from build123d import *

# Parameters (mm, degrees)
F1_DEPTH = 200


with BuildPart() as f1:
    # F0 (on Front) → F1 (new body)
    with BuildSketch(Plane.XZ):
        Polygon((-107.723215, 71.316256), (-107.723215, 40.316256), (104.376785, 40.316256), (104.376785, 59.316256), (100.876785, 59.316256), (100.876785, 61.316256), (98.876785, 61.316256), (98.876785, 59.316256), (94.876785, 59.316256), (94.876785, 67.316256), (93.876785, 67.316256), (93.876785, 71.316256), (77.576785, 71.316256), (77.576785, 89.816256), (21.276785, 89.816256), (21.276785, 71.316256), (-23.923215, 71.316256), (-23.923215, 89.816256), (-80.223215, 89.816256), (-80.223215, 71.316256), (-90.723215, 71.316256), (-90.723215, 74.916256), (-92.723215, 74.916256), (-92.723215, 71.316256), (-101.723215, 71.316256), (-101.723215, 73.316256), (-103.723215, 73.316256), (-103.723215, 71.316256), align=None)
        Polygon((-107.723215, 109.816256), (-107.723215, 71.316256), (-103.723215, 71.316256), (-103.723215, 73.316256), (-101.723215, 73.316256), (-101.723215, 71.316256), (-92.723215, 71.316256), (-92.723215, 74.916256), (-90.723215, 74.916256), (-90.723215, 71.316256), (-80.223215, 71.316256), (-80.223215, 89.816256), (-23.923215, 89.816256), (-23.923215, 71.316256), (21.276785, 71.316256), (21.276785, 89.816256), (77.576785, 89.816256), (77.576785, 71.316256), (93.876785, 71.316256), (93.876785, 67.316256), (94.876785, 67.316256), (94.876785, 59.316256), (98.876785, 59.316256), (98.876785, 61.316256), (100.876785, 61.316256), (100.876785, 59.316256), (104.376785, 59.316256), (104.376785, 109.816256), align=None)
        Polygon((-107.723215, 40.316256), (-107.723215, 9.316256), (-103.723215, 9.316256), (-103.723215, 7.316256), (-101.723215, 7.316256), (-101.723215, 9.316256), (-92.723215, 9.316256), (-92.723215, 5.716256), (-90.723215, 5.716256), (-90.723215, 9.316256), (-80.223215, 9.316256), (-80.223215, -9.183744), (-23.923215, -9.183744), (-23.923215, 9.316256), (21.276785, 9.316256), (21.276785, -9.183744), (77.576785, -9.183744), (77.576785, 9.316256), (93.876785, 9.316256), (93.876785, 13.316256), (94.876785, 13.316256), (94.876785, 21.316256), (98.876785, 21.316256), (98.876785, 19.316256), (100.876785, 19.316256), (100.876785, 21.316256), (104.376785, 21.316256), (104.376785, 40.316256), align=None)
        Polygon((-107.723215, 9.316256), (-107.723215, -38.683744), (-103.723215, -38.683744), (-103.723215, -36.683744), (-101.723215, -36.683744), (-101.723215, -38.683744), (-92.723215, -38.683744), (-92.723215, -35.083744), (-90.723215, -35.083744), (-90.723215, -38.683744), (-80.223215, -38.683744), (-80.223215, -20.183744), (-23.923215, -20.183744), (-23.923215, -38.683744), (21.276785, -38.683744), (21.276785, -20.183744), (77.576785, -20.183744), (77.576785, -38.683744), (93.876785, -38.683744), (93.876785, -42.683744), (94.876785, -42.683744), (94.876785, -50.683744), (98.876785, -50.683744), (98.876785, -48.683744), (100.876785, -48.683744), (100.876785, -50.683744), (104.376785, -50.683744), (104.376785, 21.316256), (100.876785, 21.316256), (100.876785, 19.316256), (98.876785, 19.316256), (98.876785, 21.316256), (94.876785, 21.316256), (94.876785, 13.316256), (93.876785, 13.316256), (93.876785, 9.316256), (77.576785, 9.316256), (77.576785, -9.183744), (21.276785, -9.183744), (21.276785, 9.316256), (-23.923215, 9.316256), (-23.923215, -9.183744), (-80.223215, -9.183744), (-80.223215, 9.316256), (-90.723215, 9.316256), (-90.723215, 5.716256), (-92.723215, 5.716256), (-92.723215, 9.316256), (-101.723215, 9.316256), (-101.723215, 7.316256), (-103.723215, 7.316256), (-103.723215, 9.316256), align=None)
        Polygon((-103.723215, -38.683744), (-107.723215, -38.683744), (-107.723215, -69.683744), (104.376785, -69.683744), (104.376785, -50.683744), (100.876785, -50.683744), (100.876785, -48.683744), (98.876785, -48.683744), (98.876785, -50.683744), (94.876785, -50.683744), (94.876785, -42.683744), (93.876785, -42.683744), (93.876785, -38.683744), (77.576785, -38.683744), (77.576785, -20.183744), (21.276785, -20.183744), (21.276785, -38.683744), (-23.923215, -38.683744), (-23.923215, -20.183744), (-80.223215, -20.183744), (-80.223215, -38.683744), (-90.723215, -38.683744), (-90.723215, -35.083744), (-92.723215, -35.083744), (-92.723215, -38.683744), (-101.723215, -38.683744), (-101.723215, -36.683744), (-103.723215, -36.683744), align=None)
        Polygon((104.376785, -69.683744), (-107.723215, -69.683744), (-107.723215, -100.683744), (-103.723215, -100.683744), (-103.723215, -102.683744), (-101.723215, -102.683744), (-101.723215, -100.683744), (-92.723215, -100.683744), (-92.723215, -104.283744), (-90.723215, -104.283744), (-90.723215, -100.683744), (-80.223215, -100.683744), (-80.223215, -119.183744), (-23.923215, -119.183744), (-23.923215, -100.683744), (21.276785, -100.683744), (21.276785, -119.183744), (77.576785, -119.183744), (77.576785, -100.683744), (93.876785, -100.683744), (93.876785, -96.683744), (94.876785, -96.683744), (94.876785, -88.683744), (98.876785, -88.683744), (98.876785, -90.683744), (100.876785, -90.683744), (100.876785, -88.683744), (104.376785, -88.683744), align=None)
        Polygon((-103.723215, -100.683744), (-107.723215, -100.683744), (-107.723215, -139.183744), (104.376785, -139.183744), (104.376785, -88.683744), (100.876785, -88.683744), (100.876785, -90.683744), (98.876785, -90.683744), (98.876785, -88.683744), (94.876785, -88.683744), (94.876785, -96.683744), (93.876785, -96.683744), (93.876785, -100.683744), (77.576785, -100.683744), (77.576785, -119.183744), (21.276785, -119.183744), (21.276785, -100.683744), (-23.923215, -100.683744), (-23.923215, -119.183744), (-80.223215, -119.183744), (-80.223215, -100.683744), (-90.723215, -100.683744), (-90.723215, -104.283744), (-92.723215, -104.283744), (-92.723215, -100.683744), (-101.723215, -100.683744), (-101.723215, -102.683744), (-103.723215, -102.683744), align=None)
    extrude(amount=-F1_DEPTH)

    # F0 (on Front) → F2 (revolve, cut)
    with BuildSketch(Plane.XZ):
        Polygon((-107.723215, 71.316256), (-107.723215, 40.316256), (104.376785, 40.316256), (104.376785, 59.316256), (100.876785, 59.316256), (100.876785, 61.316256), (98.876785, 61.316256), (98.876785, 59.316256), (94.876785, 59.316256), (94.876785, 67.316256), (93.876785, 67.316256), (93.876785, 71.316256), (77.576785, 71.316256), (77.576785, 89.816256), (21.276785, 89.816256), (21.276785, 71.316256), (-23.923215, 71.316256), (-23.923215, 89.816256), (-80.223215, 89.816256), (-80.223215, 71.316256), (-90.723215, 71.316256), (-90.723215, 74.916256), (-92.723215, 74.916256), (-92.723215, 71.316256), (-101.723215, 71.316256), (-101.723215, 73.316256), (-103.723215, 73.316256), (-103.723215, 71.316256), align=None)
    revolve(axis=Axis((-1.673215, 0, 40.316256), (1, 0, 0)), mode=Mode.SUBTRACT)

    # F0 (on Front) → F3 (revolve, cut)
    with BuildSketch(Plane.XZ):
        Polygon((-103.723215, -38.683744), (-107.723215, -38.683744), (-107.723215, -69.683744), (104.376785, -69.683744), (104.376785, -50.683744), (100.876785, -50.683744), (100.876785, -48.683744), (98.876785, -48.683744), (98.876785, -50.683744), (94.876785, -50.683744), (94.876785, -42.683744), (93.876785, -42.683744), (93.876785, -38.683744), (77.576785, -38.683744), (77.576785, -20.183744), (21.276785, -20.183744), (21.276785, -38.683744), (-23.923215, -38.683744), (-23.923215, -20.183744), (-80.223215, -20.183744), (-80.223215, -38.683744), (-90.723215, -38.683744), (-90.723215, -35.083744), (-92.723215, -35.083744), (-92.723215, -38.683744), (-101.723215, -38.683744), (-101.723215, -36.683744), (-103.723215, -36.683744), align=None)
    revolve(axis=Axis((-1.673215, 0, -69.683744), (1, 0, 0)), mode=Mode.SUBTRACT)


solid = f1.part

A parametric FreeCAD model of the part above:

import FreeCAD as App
import Part
import Sketcher

V = App.Vector
Q = App.Units.Quantity

doc = App.newDocument("Part")
body = doc.addObject("PartDesign::Body", "Body")

sketch1 = body.newObject("Sketcher::SketchObject", "Sketch")
sketch1.AttachmentSupport = (doc.getObject("XZ_Plane"), [""])
sketch1.MapMode = "FlatFace"
sketch1.addGeometry([
    Part.LineSegment(V(104.376785, 109.816256, 0), V(-107.723215, 109.816256, 0)),
    Part.LineSegment(V(-107.723215, 109.816256, 0), V(-107.723215, -139.183744, 0)),
    Part.LineSegment(V(-107.723215, -139.183744, 0), V(104.376785, -139.183744, 0)),
    Part.LineSegment(V(104.376785, -139.183744, 0), V(104.376785, 109.816256, 0)),
], False)
sketch1.addConstraint([
    Sketcher.Constraint("Coincident", 0, 2, 1, 1),
    Sketcher.Constraint("Coincident", 1, 2, 2, 1),
    Sketcher.Constraint("Coincident", 2, 2, 3, 1),
    Sketcher.Constraint("Coincident", 3, 2, 0, 1),
    Sketcher.Constraint("Horizontal", 0),
    Sketcher.Constraint("Vertical", 1),
    Sketcher.Constraint("Horizontal", 2),
    Sketcher.Constraint("Vertical", 3),
    Sketcher.Constraint("DistanceY", 1, 2, 1, 1, Q("249 mm")),
    Sketcher.Constraint("DistanceX", 0, 2, 0, 1, Q("212.1 mm")),
    Sketcher.Constraint("DistanceX", 0, 2, -1, 1, Q("107.723215 mm")),
    Sketcher.Constraint("DistanceY", -1, 1, 0, 2, Q("109.816256 mm")),
])
pad1 = body.newObject("PartDesign::Pad", "Pad")
pad1.Profile = sketch1
pad1.Length = 200
pad1.Reversed = True

sketch2 = body.newObject("Sketcher::SketchObject", "Sketch001")
sketch2.AttachmentSupport = (doc.getObject("XZ_Plane"), [""])
sketch2.MapMode = "FlatFace"
sketch2.addGeometry([
    Part.LineSegment(V(-107.723215, 71.316256, 0), V(-107.723215, 40.316256, 0)),
    Part.LineSegment(V(-107.723215, 40.316256, 0), V(104.376785, 40.316256, 0)),
    Part.LineSegment(V(104.376785, 40.316256, 0), V(104.376785, 59.316256, 0)),
    Part.LineSegment(V(104.376785, 59.316256, 0), V(100.876785, 59.316256, 0)),
    Part.LineSegment(V(100.876785, 59.316256, 0), V(100.876785, 61.316256, 0)),
    Part.LineSegment(V(100.876785, 61.316256, 0), V(98.876785, 61.316256, 0)),
    Part.LineSegment(V(98.876785, 61.316256, 0), V(98.876785, 59.316256, 0)),
    Part.LineSegment(V(98.876785, 59.316256, 0), V(94.876785, 59.316256, 0)),
    Part.LineSegment(V(94.876785, 59.316256, 0), V(94.876785, 67.316256, 0)),
    Part.LineSegment(V(94.876785, 67.316256, 0), V(93.876785, 67.316256, 0)),
    Part.LineSegment(V(93.876785, 67.316256, 0), V(93.876785, 71.316256, 0)),
    Part.LineSegment(V(93.876785, 71.316256, 0), V(77.576785, 71.316256, 0)),
    Part.LineSegment(V(77.576785, 71.316256, 0), V(77.576785, 89.816256, 0)),
    Part.LineSegment(V(77.576785, 89.816256, 0), V(21.276785, 89.816256, 0)),
    Part.LineSegment(V(21.276785, 89.816256, 0), V(21.276785, 71.316256, 0)),
    Part.LineSegment(V(21.276785, 71.316256, 0), V(-23.923215, 71.316256, 0)),
    Part.LineSegment(V(-23.923215, 71.316256, 0), V(-23.923215, 89.816256, 0)),
    Part.LineSegment(V(-23.923215, 89.816256, 0), V(-80.223215, 89.816256, 0)),
    Part.LineSegment(V(-80.223215, 89.816256, 0), V(-80.223215, 71.316256, 0)),
    Part.LineSegment(V(-80.223215, 71.316256, 0), V(-90.723215, 71.316256, 0)),
    Part.LineSegment(V(-90.723215, 71.316256, 0), V(-90.723215, 74.916256, 0)),
    Part.LineSegment(V(-90.723215, 74.916256, 0), V(-92.723215, 74.916256, 0)),
    Part.LineSegment(V(-92.723215, 74.916256, 0), V(-92.723215, 71.316256, 0)),
    Part.LineSegment(V(-92.723215, 71.316256, 0), V(-101.723215, 71.316256, 0)),
    Part.LineSegment(V(-101.723215, 71.316256, 0), V(-101.723215, 73.316256, 0)),
    Part.LineSegment(V(-101.723215, 73.316256, 0), V(-103.723215, 73.316256, 0)),
    Part.LineSegment(V(-103.723215, 73.316256, 0), V(-103.723215, 71.316256, 0)),
    Part.LineSegment(V(-103.723215, 71.316256, 0), V(-107.723215, 71.316256, 0)),
], False)
sketch2.addGeometry(Part.LineSegment(V(-107.723215, 40.316256, 0), V(104.376785, 40.316256, 0)), True)
sketch2.addConstraint([
    Sketcher.Constraint("Coincident", 0, 2, 1, 1),
    Sketcher.Constraint("Coincident", 1, 2, 2, 1),
    Sketcher.Constraint("Coincident", 2, 2, 3, 1),
    Sketcher.Constraint("Coincident", 3, 2, 4, 1),
    Sketcher.Constraint("Coincident", 4, 2, 5, 1),
    Sketcher.Constraint("Coincident", 5, 2, 6, 1),
    Sketcher.Constraint("Coincident", 6, 2, 7, 1),
    Sketcher.Constraint("Coincident", 7, 2, 8, 1),
    Sketcher.Constraint("Coincident", 8, 2, 9, 1),
    Sketcher.Constraint("Coincident", 9, 2, 10, 1),
    Sketcher.Constraint("Coincident", 10, 2, 11, 1),
    Sketcher.Constraint("Coincident", 11, 2, 12, 1),
    Sketcher.Constraint("Coincident", 12, 2, 13, 1),
    Sketcher.Constraint("Coincident", 13, 2, 14, 1),
    Sketcher.Constraint("Coincident", 14, 2, 15, 1),
    Sketcher.Constraint("Coincident", 15, 2, 16, 1),
    Sketcher.Constraint("Coincident", 16, 2, 17, 1),
    Sketcher.Constraint("Coincident", 17, 2, 18, 1),
    Sketcher.Constraint("Coincident", 18, 2, 19, 1),
    Sketcher.Constraint("Coincident", 19, 2, 20, 1),
    Sketcher.Constraint("Coincident", 20, 2, 21, 1),
    Sketcher.Constraint("Coincident", 21, 2, 22, 1),
    Sketcher.Constraint("Coincident", 22, 2, 23, 1),
    Sketcher.Constraint("Coincident", 23, 2, 24, 1),
    Sketcher.Constraint("Coincident", 24, 2, 25, 1),
    Sketcher.Constraint("Coincident", 25, 2, 26, 1),
    Sketcher.Constraint("Coincident", 26, 2, 27, 1),
    Sketcher.Constraint("Coincident", 27, 2, 0, 1),
    Sketcher.Constraint("Vertical", 0),
    Sketcher.Constraint("Horizontal", 1),
    Sketcher.Constraint("Vertical", 2),
    Sketcher.Constraint("Horizontal", 3),
    Sketcher.Constraint("Vertical", 4),
    Sketcher.Constraint("Horizontal", 5),
    Sketcher.Constraint("Vertical", 6),
    Sketcher.Constraint("Horizontal", 7),
    Sketcher.Constraint("Vertical", 8),
    Sketcher.Constraint("Horizontal", 9),
    Sketcher.Constraint("Vertical", 10),
    Sketcher.Constraint("Horizontal", 11),
    Sketcher.Constraint("Vertical", 12),
    Sketcher.Constraint("Horizontal", 13),
    Sketcher.Constraint("Vertical", 14),
    Sketcher.Constraint("Horizontal", 15),
    Sketcher.Constraint("Vertical", 16),
    Sketcher.Constraint("Horizontal", 17),
    Sketcher.Constraint("Vertical", 18),
    Sketcher.Constraint("Horizontal", 19),
    Sketcher.Constraint("Vertical", 20),
    Sketcher.Constraint("Horizontal", 21),
    Sketcher.Constraint("Vertical", 22),
    Sketcher.Constraint("Horizontal", 23),
    Sketcher.Constraint("Vertical", 24),
    Sketcher.Constraint("Horizontal", 25),
    Sketcher.Constraint("Vertical", 26),
    Sketcher.Constraint("Horizontal", 27),
    Sketcher.Constraint("Horizontal", 28),
    Sketcher.Constraint("Coincident", 28, 1, 0, 2),
    Sketcher.Constraint("Horizontal", 3, 2, 6, 2),
    Sketcher.Constraint("Horizontal", 11, 2, 14, 2),
    Sketcher.Constraint("Horizontal", 13, 2, 16, 2),
    Sketcher.Constraint("Horizontal", 15, 2, 18, 2),
    Sketcher.Constraint("Horizontal", 19, 2, 22, 2),
    Sketcher.Constraint("Horizontal", 23, 2, 26, 2),
    Sketcher.Constraint("Vertical", 2, 2, 28, 2),
    Sketcher.Constraint("Equal", 13, 17),
    Sketcher.Constraint("Equal", 5, 21),
    Sketcher.Constraint("Equal", 21, 25),
    Sketcher.Constraint("Equal", 7, 27),
    Sketcher.Constraint("Equal", 25, 4),
    Sketcher.Constraint("Equal", 27, 10),
    Sketcher.Constraint("Equal", 6, 24),
    Sketcher.Constraint("DistanceX", 5, 2, 5, 1, Q("2 mm")),
    Sketcher.Constraint("DistanceX", 7, 2, 7, 1, Q("4 mm")),
    Sketcher.Constraint("DistanceX", 9, 2, 9, 1, Q("1 mm")),
    Sketcher.Constraint("DistanceX", 23, 2, 23, 1, Q("9 mm")),
    Sketcher.Constraint("DistanceY", 0, 2, 0, 1, Q("31 mm")),
    Sketcher.Constraint("DistanceY", 2, 1, 2, 2, Q("19 mm")),
    Sketcher.Constraint("DistanceX", 1, 1, 1, 2, Q("212.1 mm")),
    Sketcher.Constraint("DistanceX", 3, 2, 3, 1, Q("3.5 mm")),
    Sketcher.Constraint("DistanceX", 11, 2, 11, 1, Q("16.3 mm")),
    Sketcher.Constraint("DistanceX", 13, 2, 13, 1, Q("56.3 mm")),
    Sketcher.Constraint("DistanceX", 15, 2, 15, 1, Q("45.2 mm")),
    Sketcher.Constraint("DistanceY", 12, 1, 12, 2, Q("18.5 mm")),
    Sketcher.Constraint("DistanceY", 20, 1, 20, 2, Q("3.6 mm")),
    Sketcher.Constraint("DistanceX", 0, 2, -1, 1, Q("107.723215 mm")),
    Sketcher.Constraint("DistanceY", -1, 1, 0, 2, Q("40.316256 mm")),
])
groove = body.newObject("PartDesign::Groove", "Groove")
groove.Profile = sketch2
groove.ReferenceAxis = (sketch2, ["Axis0"])
groove.Angle = 360

sketch3 = body.newObject("Sketcher::SketchObject", "Sketch002")
sketch3.AttachmentSupport = (doc.getObject("XZ_Plane"), [""])
sketch3.MapMode = "FlatFace"
sketch3.addGeometry([
    Part.LineSegment(V(-103.723215, -38.683744, 0), V(-107.723215, -38.683744, 0)),
    Part.LineSegment(V(-107.723215, -38.683744, 0), V(-107.723215, -69.683744, 0)),
    Part.LineSegment(V(-107.723215, -69.683744, 0), V(104.376785, -69.683744, 0)),
    Part.LineSegment(V(104.376785, -69.683744, 0), V(104.376785, -50.683744, 0)),
    Part.LineSegment(V(104.376785, -50.683744, 0), V(100.876785, -50.683744, 0)),
    Part.LineSegment(V(100.876785, -50.683744, 0), V(100.876785, -48.683744, 0)),
    Part.LineSegment(V(100.876785, -48.683744, 0), V(98.876785, -48.683744, 0)),
    Part.LineSegment(V(98.876785, -48.683744, 0), V(98.876785, -50.683744, 0)),
    Part.LineSegment(V(98.876785, -50.683744, 0), V(94.876785, -50.683744, 0)),
    Part.LineSegment(V(94.876785, -50.683744, 0), V(94.876785, -42.683744, 0)),
    Part.LineSegment(V(94.876785, -42.683744, 0), V(93.876785, -42.683744, 0)),
    Part.LineSegment(V(93.876785, -42.683744, 0), V(93.876785, -38.683744, 0)),
    Part.LineSegment(V(93.876785, -38.683744, 0), V(77.576785, -38.683744, 0)),
    Part.LineSegment(V(77.576785, -38.683744, 0), V(77.576785, -20.183744, 0)),
    Part.LineSegment(V(77.576785, -20.183744, 0), V(21.276785, -20.183744, 0)),
    Part.LineSegment(V(21.276785, -20.183744, 0), V(21.276785, -38.683744, 0)),
    Part.LineSegment(V(21.276785, -38.683744, 0), V(-23.923215, -38.683744, 0)),
    Part.LineSegment(V(-23.923215, -38.683744, 0), V(-23.923215, -20.183744, 0)),
    Part.LineSegment(V(-23.923215, -20.183744, 0), V(-80.223215, -20.183744, 0)),
    Part.LineSegment(V(-80.223215, -20.183744, 0), V(-80.223215, -38.683744, 0)),
    Part.LineSegment(V(-80.223215, -38.683744, 0), V(-90.723215, -38.683744, 0)),
    Part.LineSegment(V(-90.723215, -38.683744, 0), V(-90.723215, -35.083744, 0)),
    Part.LineSegment(V(-90.723215, -35.083744, 0), V(-92.723215, -35.083744, 0)),
    Part.LineSegment(V(-92.723215, -35.083744, 0), V(-92.723215, -38.683744, 0)),
    Part.LineSegment(V(-92.723215, -38.683744, 0), V(-101.723215, -38.683744, 0)),
    Part.LineSegment(V(-101.723215, -38.683744, 0), V(-101.723215, -36.683744, 0)),
    Part.LineSegment(V(-101.723215, -36.683744, 0), V(-103.723215, -36.683744, 0)),
    Part.LineSegment(V(-103.723215, -36.683744, 0), V(-103.723215, -38.683744, 0)),
], False)
sketch3.addGeometry(Part.LineSegment(V(-107.723215, -69.683744, 0), V(104.376785, -69.683744, 0)), True)
sketch3.addConstraint([
    Sketcher.Constraint("Coincident", 0, 2, 1, 1),
    Sketcher.Constraint("Coincident", 1, 2, 2, 1),
    Sketcher.Constraint("Coincident", 2, 2, 3, 1),
    Sketcher.Constraint("Coincident", 3, 2, 4, 1),
    Sketcher.Constraint("Coincident", 4, 2, 5, 1),
    Sketcher.Constraint("Coincident", 5, 2, 6, 1),
    Sketcher.Constraint("Coincident", 6, 2, 7, 1),
    Sketcher.Constraint("Coincident", 7, 2, 8, 1),
    Sketcher.Constraint("Coincident", 8, 2, 9, 1),
    Sketcher.Constraint("Coincident", 9, 2, 10, 1),
    Sketcher.Constraint("Coincident", 10, 2, 11, 1),
    Sketcher.Constraint("Coincident", 11, 2, 12, 1),
    Sketcher.Constraint("Coincident", 12, 2, 13, 1),
    Sketcher.Constraint("Coincident", 13, 2, 14, 1),
    Sketcher.Constraint("Coincident", 14, 2, 15, 1),
    Sketcher.Constraint("Coincident", 15, 2, 16, 1),
    Sketcher.Constraint("Coincident", 16, 2, 17, 1),
    Sketcher.Constraint("Coincident", 17, 2, 18, 1),
    Sketcher.Constraint("Coincident", 18, 2, 19, 1),
    Sketcher.Constraint("Coincident", 19, 2, 20, 1),
    Sketcher.Constraint("Coincident", 20, 2, 21, 1),
    Sketcher.Constraint("Coincident", 21, 2, 22, 1),
    Sketcher.Constraint("Coincident", 22, 2, 23, 1),
    Sketcher.Constraint("Coincident", 23, 2, 24, 1),
    Sketcher.Constraint("Coincident", 24, 2, 25, 1),
    Sketcher.Constraint("Coincident", 25, 2, 26, 1),
    Sketcher.Constraint("Coincident", 26, 2, 27, 1),
    Sketcher.Constraint("Coincident", 27, 2, 0, 1),
    Sketcher.Constraint("Horizontal", 0),
    Sketcher.Constraint("Vertical", 1),
    Sketcher.Constraint("Horizontal", 2),
    Sketcher.Constraint("Vertical", 3),
    Sketcher.Constraint("Horizontal", 4),
    Sketcher.Constraint("Vertical", 5),
    Sketcher.Constraint("Horizontal", 6),
    Sketcher.Constraint("Vertical", 7),
    Sketcher.Constraint("Horizontal", 8),
    Sketcher.Constraint("Vertical", 9),
    Sketcher.Constraint("Horizontal", 10),
    Sketcher.Constraint("Vertical", 11),
    Sketcher.Constraint("Horizontal", 12),
    Sketcher.Constraint("Vertical", 13),
    Sketcher.Constraint("Horizontal", 14),
    Sketcher.Constraint("Vertical", 15),
    Sketcher.Constraint("Horizontal", 16),
    Sketcher.Constraint("Vertical", 17),
    Sketcher.Constraint("Horizontal", 18),
    Sketcher.Constraint("Vertical", 19),
    Sketcher.Constraint("Horizontal", 20),
    Sketcher.Constraint("Vertical", 21),
    Sketcher.Constraint("Horizontal", 22),
    Sketcher.Constraint("Vertical", 23),
    Sketcher.Constraint("Horizontal", 24),
    Sketcher.Constraint("Vertical", 25),
    Sketcher.Constraint("Horizontal", 26),
    Sketcher.Constraint("Vertical", 27),
    Sketcher.Constraint("Horizontal", 28),
    Sketcher.Constraint("Coincident", 28, 1, 1, 2),
    Sketcher.Constraint("Horizontal", 4, 2, 7, 2),
    Sketcher.Constraint("Horizontal", 0, 2, 11, 2),
    Sketcher.Constraint("Horizontal", 12, 2, 15, 2),
    Sketcher.Constraint("Horizontal", 14, 2, 17, 2),
    Sketcher.Constraint("Horizontal", 16, 2, 19, 2),
    Sketcher.Constraint("Horizontal", 20, 2, 23, 2),
    Sketcher.Constraint("Vertical", 3, 2, 28, 2),
    Sketcher.Constraint("Equal", 0, 8),
    Sketcher.Constraint("Equal", 14, 18),
    Sketcher.Constraint("Equal", 6, 22),
    Sketcher.Constraint("Equal", 22, 26),
    Sketcher.Constraint("Equal", 26, 5),
    Sketcher.Constraint("Equal", 8, 11),
    Sketcher.Constraint("Equal", 7, 25),
    Sketcher.Constraint("DistanceX", 0, 2, 0, 1, Q("4 mm")),
    Sketcher.Constraint("DistanceX", 6, 2, 6, 1, Q("2 mm")),
    Sketcher.Constraint("DistanceX", 10, 2, 10, 1, Q("1 mm")),
    Sketcher.Constraint("DistanceX", 24, 2, 24, 1, Q("9 mm")),
    Sketcher.Constraint("DistanceY", 1, 2, 1, 1, Q("31 mm")),
    Sketcher.Constraint("DistanceY", 3, 1, 3, 2, Q("19 mm")),
    Sketcher.Constraint("DistanceX", 2, 1, 2, 2, Q("212.1 mm")),
    Sketcher.Constraint("DistanceX", 4, 2, 4, 1, Q("3.5 mm")),
    Sketcher.Constraint("DistanceX", 12, 2, 12, 1, Q("16.3 mm")),
    Sketcher.Constraint("DistanceX", 14, 2, 14, 1, Q("56.3 mm")),
    Sketcher.Constraint("DistanceX", 16, 2, 16, 1, Q("45.2 mm")),
    Sketcher.Constraint("DistanceY", 13, 1, 13, 2, Q("18.5 mm")),
    Sketcher.Constraint("DistanceY", 21, 1, 21, 2, Q("3.6 mm")),
    Sketcher.Constraint("DistanceX", 0, 2, -1, 1, Q("107.723215 mm")),
    Sketcher.Constraint("DistanceY", 0, 2, -1, 1, Q("38.683744 mm")),
])
groove2 = body.newObject("PartDesign::Groove", "Groove001")
groove2.Profile = sketch3
groove2.ReferenceAxis = (sketch3, ["Axis0"])
groove2.Angle = 360

doc.recompute()
